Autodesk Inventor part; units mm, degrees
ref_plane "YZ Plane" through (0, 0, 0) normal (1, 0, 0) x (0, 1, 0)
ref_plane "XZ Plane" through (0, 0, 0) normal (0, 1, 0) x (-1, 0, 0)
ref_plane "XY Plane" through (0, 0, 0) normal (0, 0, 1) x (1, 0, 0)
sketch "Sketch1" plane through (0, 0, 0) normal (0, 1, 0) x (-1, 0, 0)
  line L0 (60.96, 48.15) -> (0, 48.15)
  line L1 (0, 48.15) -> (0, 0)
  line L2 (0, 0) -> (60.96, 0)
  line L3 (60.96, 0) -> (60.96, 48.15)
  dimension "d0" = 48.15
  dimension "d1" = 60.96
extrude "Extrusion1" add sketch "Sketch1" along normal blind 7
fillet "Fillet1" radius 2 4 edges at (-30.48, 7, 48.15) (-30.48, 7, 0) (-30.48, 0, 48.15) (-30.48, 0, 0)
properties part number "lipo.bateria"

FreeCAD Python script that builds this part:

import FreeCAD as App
import Part
import Sketcher
from FreeCAD import Vector


def edges_at(feature, points):
    """Names of the edges that pass closest to the given points."""
    edges = feature.Shape.Edges
    near = lambda p: min(range(len(edges)), key=lambda i: edges[i].distToShape(Part.Vertex(*p))[0])
    return sorted({f"Edge{near(p) + 1}" for p in points})

doc = App.newDocument("Part")
params = doc.addObject("Spreadsheet::Sheet", "Params")
for row, (alias, value) in enumerate([
    ("sketch1_width", "60.96 mm"),
    ("sketch1_height", "48.15 mm"),
    ("pad1_length", "7 mm"),
    ("fillet_radius", "2 mm"),
], start=1):
    params.set(f"A{row}", alias)
    params.set(f"B{row}", "=" + value)
    params.setAlias(f"B{row}", alias)

body = doc.addObject("PartDesign::Body", "Body")

# Sketch on XZ plane
sketch1 = body.newObject("Sketcher::SketchObject", "Sketch")
sketch1.AttachmentSupport = (doc.getObject("XZ_Plane"), [""])
sketch1.MapMode = "FlatFace"
sketch1.addGeometry(Part.LineSegment(Vector(-61, 0, 0), Vector(-61, 48, 0)), False)
sketch1.addGeometry(Part.LineSegment(Vector(-61, 48, 0), Vector(0, 48, 0)), False)
sketch1.addGeometry(Part.LineSegment(Vector(0, 48, 0), Vector(0, 0, 0)), False)
sketch1.addGeometry(Part.LineSegment(Vector(0, 0, 0), Vector(-61, 0, 0)), False)
sketch1.addConstraint(Sketcher.Constraint("Coincident", 0, 2, 1, 1))
sketch1.addConstraint(Sketcher.Constraint("Coincident", 1, 2, 2, 1))
sketch1.addConstraint(Sketcher.Constraint("Coincident", 2, 2, 3, 1))
sketch1.addConstraint(Sketcher.Constraint("Coincident", 3, 2, 0, 1))
sketch1.addConstraint(Sketcher.Constraint("Vertical", 0))
sketch1.addConstraint(Sketcher.Constraint("Horizontal", 1))
sketch1.addConstraint(Sketcher.Constraint("Vertical", 2))
sketch1.addConstraint(Sketcher.Constraint("Horizontal", 3))
sketch1.addConstraint(Sketcher.Constraint("Coincident", 2, 2, -1, 1))
sketch1.addConstraint(Sketcher.Constraint("DistanceX", 1, 1, 1, 2, 60.96))
sketch1.addConstraint(Sketcher.Constraint("DistanceY", 0, 1, 0, 2, 48.15))
sketch1.setExpression("Constraints[9]", "Params.sketch1_width")
sketch1.setExpression("Constraints[10]", "Params.sketch1_height")
pad1 = body.newObject("PartDesign::Pad", "Pad")
pad1.Profile = sketch1
pad1.setExpression("Length", "Params.pad1_length")
pad1.Reversed = True
doc.recompute()

fillet = body.newObject("PartDesign::Fillet", "Fillet")
fillet.Base = (pad1, edges_at(pad1, [
    (-30.48, 7, 48.15),
    (-30.48, 7, 0),
    (-30.48, 0, 48.15),
    (-30.48, 0, 0),
]))
fillet.setExpression("Radius", "Params.fillet_radius")

doc.recompute()
